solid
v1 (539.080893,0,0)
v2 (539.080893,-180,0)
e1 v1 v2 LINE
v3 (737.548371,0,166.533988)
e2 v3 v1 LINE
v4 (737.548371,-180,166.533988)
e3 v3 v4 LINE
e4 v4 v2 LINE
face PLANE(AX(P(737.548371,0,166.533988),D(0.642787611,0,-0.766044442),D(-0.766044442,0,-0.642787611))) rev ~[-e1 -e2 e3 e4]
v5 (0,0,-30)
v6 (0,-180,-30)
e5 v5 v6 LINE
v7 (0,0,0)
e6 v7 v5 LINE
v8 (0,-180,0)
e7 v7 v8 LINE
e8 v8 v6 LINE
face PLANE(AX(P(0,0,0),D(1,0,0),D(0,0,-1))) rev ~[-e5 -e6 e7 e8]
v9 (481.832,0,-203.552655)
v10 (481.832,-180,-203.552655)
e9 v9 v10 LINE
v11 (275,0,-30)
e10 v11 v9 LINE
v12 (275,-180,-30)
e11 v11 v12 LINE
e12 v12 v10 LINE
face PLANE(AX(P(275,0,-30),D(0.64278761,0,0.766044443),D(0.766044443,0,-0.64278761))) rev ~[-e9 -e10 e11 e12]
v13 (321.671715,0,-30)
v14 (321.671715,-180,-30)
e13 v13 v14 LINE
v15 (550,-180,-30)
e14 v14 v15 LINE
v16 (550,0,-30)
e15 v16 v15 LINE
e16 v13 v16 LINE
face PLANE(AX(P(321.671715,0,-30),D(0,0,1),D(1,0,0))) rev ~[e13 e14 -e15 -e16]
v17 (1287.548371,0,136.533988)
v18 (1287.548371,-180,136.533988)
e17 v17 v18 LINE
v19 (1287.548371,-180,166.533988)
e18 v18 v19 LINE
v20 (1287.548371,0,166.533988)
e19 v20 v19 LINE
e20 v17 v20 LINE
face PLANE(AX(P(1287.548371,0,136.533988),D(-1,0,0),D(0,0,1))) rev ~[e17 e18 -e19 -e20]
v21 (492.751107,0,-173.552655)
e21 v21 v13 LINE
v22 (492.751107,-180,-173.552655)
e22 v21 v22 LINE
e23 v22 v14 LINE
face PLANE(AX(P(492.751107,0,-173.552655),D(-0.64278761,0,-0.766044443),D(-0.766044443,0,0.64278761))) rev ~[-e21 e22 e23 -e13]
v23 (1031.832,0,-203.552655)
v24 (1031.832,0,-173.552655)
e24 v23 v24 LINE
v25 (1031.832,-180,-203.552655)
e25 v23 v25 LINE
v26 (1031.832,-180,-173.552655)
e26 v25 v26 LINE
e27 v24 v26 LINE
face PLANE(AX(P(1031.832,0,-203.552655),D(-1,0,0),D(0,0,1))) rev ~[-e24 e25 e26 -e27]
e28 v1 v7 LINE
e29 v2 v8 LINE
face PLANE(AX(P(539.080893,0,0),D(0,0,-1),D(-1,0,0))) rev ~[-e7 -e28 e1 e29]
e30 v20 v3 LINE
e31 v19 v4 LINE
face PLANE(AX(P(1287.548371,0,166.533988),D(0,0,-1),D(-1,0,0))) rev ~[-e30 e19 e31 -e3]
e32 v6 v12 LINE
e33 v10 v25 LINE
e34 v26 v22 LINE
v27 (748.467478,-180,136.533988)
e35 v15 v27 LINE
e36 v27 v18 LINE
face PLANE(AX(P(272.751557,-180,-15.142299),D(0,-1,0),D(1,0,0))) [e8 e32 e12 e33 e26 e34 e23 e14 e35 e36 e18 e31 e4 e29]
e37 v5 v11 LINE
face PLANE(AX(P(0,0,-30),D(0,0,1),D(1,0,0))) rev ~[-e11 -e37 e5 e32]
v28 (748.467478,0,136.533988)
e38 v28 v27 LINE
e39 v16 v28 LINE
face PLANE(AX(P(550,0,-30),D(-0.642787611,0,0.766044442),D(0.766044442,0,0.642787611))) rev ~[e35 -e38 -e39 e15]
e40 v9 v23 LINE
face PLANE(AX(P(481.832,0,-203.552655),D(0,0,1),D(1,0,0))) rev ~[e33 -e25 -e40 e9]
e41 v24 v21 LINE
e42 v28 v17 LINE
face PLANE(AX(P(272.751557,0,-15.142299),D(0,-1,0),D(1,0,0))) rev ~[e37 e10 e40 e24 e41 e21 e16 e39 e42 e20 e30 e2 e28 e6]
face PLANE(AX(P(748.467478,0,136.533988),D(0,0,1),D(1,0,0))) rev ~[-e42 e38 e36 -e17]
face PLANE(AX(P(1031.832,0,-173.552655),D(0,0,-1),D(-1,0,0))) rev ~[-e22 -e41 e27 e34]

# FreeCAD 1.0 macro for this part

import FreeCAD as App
import Part
import Sketcher

V = App.Vector
Q = App.Units.Quantity

doc = App.newDocument("Part")
params = doc.addObject("Spreadsheet::Sheet", "Params")
for row, (alias, value) in enumerate([
    ("sketch1_width", "275 mm"),
    ("sketch1_width2", "550 mm"),
    ("sketch1_height", "30 mm"),
    ("sketch1_length", "270.000001 mm"),
    ("pad1_length", "180 mm"),
], start=1):
    params.set(f"A{row}", alias)
    params.set(f"B{row}", "=" + value)
    params.setAlias(f"B{row}", alias)

body = doc.addObject("PartDesign::Body", "Body")

sketch1 = doc.addObject("Sketcher::SketchObject", "Sketch")
body.addObject(sketch1)
sketch1.AttachmentSupport = (doc.XZ_Plane, [""])
sketch1.MapMode = "FlatFace"
sketch1.addGeometry([
    Part.LineSegment(V(0, 0, 0), V(0, -30, 0)),
    Part.LineSegment(V(0, -30, 0), V(275, -30, 0)),
    Part.LineSegment(V(275, -30, 0), V(482, -204, 0)),
    Part.LineSegment(V(482, -204, 0), V(1032, -204, 0)),
    Part.LineSegment(V(1032, -204, 0), V(1032, -174, 0)),
    Part.LineSegment(V(1032, -174, 0), V(493, -174, 0)),
    Part.LineSegment(V(493, -174, 0), V(322, -30, 0)),
    Part.LineSegment(V(322, -30, 0), V(550, -30, 0)),
    Part.LineSegment(V(550, -30, 0), V(748, 137, 0)),
    Part.LineSegment(V(748, 137, 0), V(1288, 137, 0)),
    Part.LineSegment(V(1288, 137, 0), V(1288, 167, 0)),
    Part.LineSegment(V(1288, 167, 0), V(738, 167, 0)),
    Part.LineSegment(V(738, 167, 0), V(539, 0, 0)),
    Part.LineSegment(V(539, 0, 0), V(0, 0, 0)),
], False)
sketch1.addConstraint([
    Sketcher.Constraint("Coincident", 0, 2, 1, 1),
    Sketcher.Constraint("Coincident", 1, 2, 2, 1),
    Sketcher.Constraint("Coincident", 2, 2, 3, 1),
    Sketcher.Constraint("Coincident", 3, 2, 4, 1),
    Sketcher.Constraint("Coincident", 4, 2, 5, 1),
    Sketcher.Constraint("Coincident", 5, 2, 6, 1),
    Sketcher.Constraint("Coincident", 6, 2, 7, 1),
    Sketcher.Constraint("Coincident", 7, 2, 8, 1),
    Sketcher.Constraint("Coincident", 8, 2, 9, 1),
    Sketcher.Constraint("Coincident", 9, 2, 10, 1),
    Sketcher.Constraint("Coincident", 10, 2, 11, 1),
    Sketcher.Constraint("Coincident", 11, 2, 12, 1),
    Sketcher.Constraint("Coincident", 12, 2, 13, 1),
    Sketcher.Constraint("Coincident", 13, 2, 0, 1),
    Sketcher.Constraint("Vertical", 0),
    Sketcher.Constraint("Horizontal", 1),
    Sketcher.Constraint("Horizontal", 3),
    Sketcher.Constraint("Vertical", 4),
    Sketcher.Constraint("Horizontal", 5),
    Sketcher.Constraint("Horizontal", 7),
    Sketcher.Constraint("Horizontal", 9),
    Sketcher.Constraint("Vertical", 10),
    Sketcher.Constraint("Horizontal", 11),
    Sketcher.Constraint("Horizontal", 13),
    Sketcher.Constraint("Coincident", 13, 2, -1, 1),
    Sketcher.Constraint("Parallel", 2, 6),
    Sketcher.Constraint("Parallel", 8, 12),
    Sketcher.Constraint("Horizontal", 1, 2, 6, 2),
    Sketcher.Constraint("Equal", 5, 9),
    Sketcher.Constraint("Equal", 3, 11),
    Sketcher.Constraint("Equal", 9, 13),
    Sketcher.Constraint("Equal", 0, 4),
    Sketcher.Constraint("Equal", 4, 10),
    Sketcher.Constraint("DistanceX", 1, 1, 1, 2, Q("275 mm")),
    Sketcher.Constraint("DistanceX", 3, 1, 3, 2, Q("550 mm")),
    Sketcher.Constraint("DistanceY", 0, 2, 0, 1, Q("30 mm")),
    Sketcher.Constraint("Angle", 2, Q("-40 deg")),
    Sketcher.Constraint("Angle", 8, Q("40 deg")),
    Sketcher.Constraint("Distance", 2, Q("270.000001 mm")),
    Sketcher.Constraint("DistanceX", 5, 2, 5, 1, Q("539.080893 mm")),
    Sketcher.Constraint("DistanceX", -1, 1, 8, 2, Q("748.467478 mm")),
])
sketch1.setExpression("Constraints[33]", "Params.sketch1_width")
sketch1.setExpression("Constraints[34]", "Params.sketch1_width2")
sketch1.setExpression("Constraints[35]", "Params.sketch1_height")
sketch1.setExpression("Constraints[38]", "Params.sketch1_length")
pad1 = doc.addObject("PartDesign::Pad", "Pad")
body.addObject(pad1)
pad1.Profile = sketch1
pad1.setExpression("Length", "Params.pad1_length")

doc.recompute()
